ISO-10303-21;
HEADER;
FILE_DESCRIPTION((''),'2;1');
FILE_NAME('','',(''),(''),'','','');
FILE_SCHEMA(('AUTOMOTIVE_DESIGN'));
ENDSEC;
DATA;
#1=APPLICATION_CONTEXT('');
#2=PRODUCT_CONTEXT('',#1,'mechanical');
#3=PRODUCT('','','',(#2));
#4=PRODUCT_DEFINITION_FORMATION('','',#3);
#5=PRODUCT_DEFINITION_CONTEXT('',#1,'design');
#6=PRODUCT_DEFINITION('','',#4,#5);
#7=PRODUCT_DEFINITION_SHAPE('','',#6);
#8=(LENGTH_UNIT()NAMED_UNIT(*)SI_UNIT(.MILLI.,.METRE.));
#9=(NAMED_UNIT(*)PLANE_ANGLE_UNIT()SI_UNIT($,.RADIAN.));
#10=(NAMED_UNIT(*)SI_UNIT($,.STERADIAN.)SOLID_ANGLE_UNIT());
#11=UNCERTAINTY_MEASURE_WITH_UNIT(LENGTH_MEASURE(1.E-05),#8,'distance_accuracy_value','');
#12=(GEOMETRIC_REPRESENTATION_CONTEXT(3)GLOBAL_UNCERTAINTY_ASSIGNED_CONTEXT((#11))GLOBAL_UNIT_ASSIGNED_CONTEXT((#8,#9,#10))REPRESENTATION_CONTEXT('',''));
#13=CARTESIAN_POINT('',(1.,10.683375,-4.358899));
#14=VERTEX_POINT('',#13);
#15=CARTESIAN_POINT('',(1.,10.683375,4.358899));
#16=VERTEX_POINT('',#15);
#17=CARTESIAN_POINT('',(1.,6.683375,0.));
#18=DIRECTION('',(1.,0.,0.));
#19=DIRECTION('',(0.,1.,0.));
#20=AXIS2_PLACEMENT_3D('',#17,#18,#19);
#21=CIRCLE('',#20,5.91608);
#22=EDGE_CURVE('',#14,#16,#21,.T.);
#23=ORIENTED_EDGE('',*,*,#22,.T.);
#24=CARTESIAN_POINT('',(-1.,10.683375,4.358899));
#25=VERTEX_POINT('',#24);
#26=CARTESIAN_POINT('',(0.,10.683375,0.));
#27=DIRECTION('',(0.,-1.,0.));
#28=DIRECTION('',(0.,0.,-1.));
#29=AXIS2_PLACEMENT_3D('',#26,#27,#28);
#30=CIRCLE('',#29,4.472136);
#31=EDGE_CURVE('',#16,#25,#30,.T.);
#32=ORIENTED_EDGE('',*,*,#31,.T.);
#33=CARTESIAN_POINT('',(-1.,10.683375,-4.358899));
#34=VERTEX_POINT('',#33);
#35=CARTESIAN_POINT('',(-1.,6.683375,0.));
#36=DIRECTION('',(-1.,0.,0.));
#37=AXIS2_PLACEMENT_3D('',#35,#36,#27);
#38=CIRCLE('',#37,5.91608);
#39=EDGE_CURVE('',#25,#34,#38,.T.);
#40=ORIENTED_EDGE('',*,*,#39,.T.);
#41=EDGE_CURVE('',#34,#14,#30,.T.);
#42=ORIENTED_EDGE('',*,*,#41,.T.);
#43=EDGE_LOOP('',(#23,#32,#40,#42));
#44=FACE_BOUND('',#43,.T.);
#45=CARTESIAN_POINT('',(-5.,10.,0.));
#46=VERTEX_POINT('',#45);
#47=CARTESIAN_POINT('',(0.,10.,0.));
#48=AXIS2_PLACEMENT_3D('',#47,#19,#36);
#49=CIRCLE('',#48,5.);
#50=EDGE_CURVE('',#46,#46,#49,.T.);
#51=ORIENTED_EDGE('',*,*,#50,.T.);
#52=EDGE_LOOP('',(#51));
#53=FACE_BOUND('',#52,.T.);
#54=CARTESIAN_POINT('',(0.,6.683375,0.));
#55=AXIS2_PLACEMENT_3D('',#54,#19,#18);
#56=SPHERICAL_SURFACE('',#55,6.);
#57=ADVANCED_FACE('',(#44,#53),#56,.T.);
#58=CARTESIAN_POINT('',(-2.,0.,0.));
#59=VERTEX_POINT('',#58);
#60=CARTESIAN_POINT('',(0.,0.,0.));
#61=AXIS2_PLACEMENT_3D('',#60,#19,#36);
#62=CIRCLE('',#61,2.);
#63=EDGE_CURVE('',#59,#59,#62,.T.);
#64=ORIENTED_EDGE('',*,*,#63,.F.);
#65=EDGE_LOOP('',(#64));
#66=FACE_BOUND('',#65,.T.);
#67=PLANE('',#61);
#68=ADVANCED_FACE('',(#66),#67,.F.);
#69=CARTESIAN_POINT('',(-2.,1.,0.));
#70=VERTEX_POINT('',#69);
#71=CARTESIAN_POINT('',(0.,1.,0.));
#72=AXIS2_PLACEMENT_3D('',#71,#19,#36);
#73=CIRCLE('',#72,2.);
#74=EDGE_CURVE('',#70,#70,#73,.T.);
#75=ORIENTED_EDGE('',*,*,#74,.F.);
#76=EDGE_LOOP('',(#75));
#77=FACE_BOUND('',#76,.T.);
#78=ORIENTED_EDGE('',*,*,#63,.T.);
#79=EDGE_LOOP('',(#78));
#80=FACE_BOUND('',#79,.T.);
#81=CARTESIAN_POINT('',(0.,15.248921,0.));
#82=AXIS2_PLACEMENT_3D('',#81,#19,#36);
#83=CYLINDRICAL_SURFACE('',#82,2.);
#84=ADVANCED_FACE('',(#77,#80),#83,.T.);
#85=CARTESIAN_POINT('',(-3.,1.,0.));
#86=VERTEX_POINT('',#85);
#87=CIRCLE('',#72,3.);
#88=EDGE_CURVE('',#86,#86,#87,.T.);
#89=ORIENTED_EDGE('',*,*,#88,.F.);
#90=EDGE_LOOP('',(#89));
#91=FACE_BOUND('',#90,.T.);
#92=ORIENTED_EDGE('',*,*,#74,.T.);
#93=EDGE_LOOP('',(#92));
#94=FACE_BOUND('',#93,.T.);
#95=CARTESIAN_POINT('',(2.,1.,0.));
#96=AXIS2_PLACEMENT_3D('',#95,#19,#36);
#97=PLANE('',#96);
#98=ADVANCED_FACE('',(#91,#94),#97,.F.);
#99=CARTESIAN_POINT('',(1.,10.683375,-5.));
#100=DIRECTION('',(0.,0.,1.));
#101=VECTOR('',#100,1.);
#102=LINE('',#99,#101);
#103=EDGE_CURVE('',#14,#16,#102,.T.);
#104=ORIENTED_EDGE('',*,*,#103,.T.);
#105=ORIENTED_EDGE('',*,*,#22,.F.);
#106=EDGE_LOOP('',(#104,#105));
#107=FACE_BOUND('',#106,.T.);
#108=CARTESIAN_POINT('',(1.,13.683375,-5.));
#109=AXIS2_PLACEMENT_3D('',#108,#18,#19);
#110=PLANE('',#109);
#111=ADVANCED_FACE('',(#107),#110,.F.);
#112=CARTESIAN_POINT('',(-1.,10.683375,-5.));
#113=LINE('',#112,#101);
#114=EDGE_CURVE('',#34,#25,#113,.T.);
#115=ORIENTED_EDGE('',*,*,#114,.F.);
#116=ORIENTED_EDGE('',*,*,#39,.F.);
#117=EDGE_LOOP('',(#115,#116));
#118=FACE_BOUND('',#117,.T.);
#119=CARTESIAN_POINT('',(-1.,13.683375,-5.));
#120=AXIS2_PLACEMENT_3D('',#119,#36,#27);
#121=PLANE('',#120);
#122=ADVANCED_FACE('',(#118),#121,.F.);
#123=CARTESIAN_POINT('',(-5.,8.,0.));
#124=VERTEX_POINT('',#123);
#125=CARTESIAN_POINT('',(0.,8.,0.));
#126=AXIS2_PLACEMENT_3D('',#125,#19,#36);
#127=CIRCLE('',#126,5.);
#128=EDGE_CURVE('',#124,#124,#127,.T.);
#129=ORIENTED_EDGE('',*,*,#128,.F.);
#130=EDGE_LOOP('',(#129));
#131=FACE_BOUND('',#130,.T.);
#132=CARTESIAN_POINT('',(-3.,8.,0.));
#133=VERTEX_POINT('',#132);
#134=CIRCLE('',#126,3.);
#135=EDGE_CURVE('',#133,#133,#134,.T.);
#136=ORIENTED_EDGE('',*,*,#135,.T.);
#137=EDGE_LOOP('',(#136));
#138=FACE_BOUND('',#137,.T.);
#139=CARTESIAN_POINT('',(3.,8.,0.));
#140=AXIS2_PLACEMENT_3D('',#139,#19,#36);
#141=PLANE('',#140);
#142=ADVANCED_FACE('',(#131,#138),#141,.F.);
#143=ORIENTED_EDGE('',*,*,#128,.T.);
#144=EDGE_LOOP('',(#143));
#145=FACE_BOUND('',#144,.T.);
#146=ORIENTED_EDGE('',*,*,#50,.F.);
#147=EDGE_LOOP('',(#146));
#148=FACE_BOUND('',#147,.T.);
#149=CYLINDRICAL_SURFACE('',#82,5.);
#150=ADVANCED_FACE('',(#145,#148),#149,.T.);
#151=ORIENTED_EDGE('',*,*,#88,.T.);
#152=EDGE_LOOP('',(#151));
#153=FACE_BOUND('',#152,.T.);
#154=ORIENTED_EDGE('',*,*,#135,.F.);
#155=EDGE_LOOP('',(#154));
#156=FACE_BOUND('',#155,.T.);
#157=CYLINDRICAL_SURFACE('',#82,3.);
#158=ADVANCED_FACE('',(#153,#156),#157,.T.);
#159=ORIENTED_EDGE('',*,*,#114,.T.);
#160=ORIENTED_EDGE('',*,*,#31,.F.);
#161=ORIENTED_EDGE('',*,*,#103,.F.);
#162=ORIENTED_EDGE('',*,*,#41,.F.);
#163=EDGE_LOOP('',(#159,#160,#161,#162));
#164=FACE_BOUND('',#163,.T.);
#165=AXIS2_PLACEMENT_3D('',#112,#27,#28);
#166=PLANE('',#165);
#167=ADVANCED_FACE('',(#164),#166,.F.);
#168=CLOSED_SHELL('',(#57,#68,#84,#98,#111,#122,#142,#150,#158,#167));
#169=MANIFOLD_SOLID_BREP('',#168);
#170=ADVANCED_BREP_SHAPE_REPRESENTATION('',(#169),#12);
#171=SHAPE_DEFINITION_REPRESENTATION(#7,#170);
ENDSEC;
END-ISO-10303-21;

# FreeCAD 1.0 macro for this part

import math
import FreeCAD as App
import Part
import Sketcher

V = App.Vector

doc = App.newDocument("Part")
params = doc.addObject("Spreadsheet::Sheet", "Params")
for row, (alias, value) in enumerate([
    ("sketch1_radius", "6 mm"),
    ("sketch1_width", "2 mm"),
    ("sketch1_width2", "1 mm"),
    ("sketch1_height", "7 mm"),
    ("revolution_angle", "360 deg"),
    ("sketch2_width", "2 mm"),
    ("sketch2_height", "3 mm"),
], start=1):
    params.set(f"A{row}", alias)
    params.set(f"B{row}", "=" + value)
    params.setAlias(f"B{row}", alias)

body = doc.addObject("PartDesign::Body", "Body")

# Sketch on XY plane
sketch1 = body.newObject("Sketcher::SketchObject", "Sketch")
sketch1.AttachmentSupport = (doc.getObject("XY_Plane"), [""])
sketch1.MapMode = "FlatFace"
sketch1.addGeometry([
    Part.LineSegment(V(0, 12.683375, 0), V(0, 0, 0)),  # 0
    Part.LineSegment(V(0, 0, 0), V(2, 0, 0)),  # 1
    Part.LineSegment(V(2, 0, 0), V(2, 1, 0)),  # 2
    Part.LineSegment(V(2, 1, 0), V(3, 1, 0)),  # 3
    Part.LineSegment(V(3, 1, 0), V(3, 8, 0)),  # 4
    Part.LineSegment(V(3, 8, 0), V(5, 8, 0)),  # 5
    Part.LineSegment(V(5, 8, 0), V(5, 10, 0)),  # 6
    Part.ArcOfCircle(Part.Circle(V(0, 6.683375, 0), V(0, 0, 1), 6), math.radians(33.55731), math.radians(90)),  # 7
], False)
sketch1.addConstraint([
    Sketcher.Constraint("Coincident", 0, 2, 1, 1),
    Sketcher.Constraint("Coincident", 1, 2, 2, 1),
    Sketcher.Constraint("Coincident", 2, 2, 3, 1),
    Sketcher.Constraint("Coincident", 3, 2, 4, 1),
    Sketcher.Constraint("Coincident", 4, 2, 5, 1),
    Sketcher.Constraint("Coincident", 5, 2, 6, 1),
    Sketcher.Constraint("Coincident", 6, 2, 7, 1),
    Sketcher.Constraint("Coincident", 7, 2, 0, 1),
    Sketcher.Constraint("Vertical", 0),
    Sketcher.Constraint("Horizontal", 1),
    Sketcher.Constraint("Vertical", 2),
    Sketcher.Constraint("Horizontal", 3),
    Sketcher.Constraint("Vertical", 4),
    Sketcher.Constraint("Horizontal", 5),
    Sketcher.Constraint("Vertical", 6),
    Sketcher.Constraint("Coincident", 0, 2, -1, 1),
    Sketcher.Constraint("PointOnObject", 7, 3, -2),
    Sketcher.Constraint("Equal", 1, 5),
    Sketcher.Constraint("Equal", 3, 2),
    Sketcher.Constraint("Equal", 5, 6),
    Sketcher.Constraint("Radius", 7, 6.0),
    Sketcher.Constraint("DistanceX", 1, 1, 1, 2, 2.0),
    Sketcher.Constraint("DistanceX", 3, 1, 3, 2, 1.0),
    Sketcher.Constraint("DistanceY", 4, 1, 4, 2, 7.0),
])
sketch1.setExpression("Constraints[20]", "Params.sketch1_radius")
sketch1.setExpression("Constraints[21]", "Params.sketch1_width")
sketch1.setExpression("Constraints[22]", "Params.sketch1_width2")
sketch1.setExpression("Constraints[23]", "Params.sketch1_height")
revolution = body.newObject("PartDesign::Revolution", "Revolution")
revolution.Profile = sketch1
revolution.ReferenceAxis = (sketch1, ["V_Axis"])
revolution.setExpression("Angle", "Params.revolution_angle")

# Sketch on XY plane
sketch2 = body.newObject("Sketcher::SketchObject", "Sketch001")
sketch2.AttachmentSupport = (doc.getObject("XY_Plane"), [""])
sketch2.MapMode = "FlatFace"
sketch2.addGeometry([
    Part.LineSegment(V(-1, 13.683375, 0), V(-1, 10.683375, 0)),
    Part.LineSegment(V(-1, 10.683375, 0), V(1, 10.683375, 0)),
    Part.LineSegment(V(1, 10.683375, 0), V(1, 13.683375, 0)),
    Part.LineSegment(V(1, 13.683375, 0), V(-1, 13.683375, 0)),
], False)
sketch2.addConstraint([
    Sketcher.Constraint("Coincident", 0, 2, 1, 1),
    Sketcher.Constraint("Coincident", 1, 2, 2, 1),
    Sketcher.Constraint("Coincident", 2, 2, 3, 1),
    Sketcher.Constraint("Coincident", 3, 2, 0, 1),
    Sketcher.Constraint("Vertical", 0),
    Sketcher.Constraint("Horizontal", 1),
    Sketcher.Constraint("Vertical", 2),
    Sketcher.Constraint("Horizontal", 3),
    Sketcher.Constraint("DistanceX", 1, 1, 1, 2, 2.0),
    Sketcher.Constraint("DistanceY", 0, 2, 0, 1, 3.0),
    Sketcher.Constraint("DistanceX", 0, 2, -1, 1, 1.0),
    Sketcher.Constraint("DistanceY", -1, 1, 0, 2, 10.683375),
])
sketch2.setExpression("Constraints[8]", "Params.sketch2_width")
sketch2.setExpression("Constraints[9]", "Params.sketch2_height")
pocket1 = body.newObject("PartDesign::Pocket", "Pocket")
pocket1.Profile = sketch2
pocket1.Type = "ThroughAll"
pocket1.Midplane = True

doc.recompute()
